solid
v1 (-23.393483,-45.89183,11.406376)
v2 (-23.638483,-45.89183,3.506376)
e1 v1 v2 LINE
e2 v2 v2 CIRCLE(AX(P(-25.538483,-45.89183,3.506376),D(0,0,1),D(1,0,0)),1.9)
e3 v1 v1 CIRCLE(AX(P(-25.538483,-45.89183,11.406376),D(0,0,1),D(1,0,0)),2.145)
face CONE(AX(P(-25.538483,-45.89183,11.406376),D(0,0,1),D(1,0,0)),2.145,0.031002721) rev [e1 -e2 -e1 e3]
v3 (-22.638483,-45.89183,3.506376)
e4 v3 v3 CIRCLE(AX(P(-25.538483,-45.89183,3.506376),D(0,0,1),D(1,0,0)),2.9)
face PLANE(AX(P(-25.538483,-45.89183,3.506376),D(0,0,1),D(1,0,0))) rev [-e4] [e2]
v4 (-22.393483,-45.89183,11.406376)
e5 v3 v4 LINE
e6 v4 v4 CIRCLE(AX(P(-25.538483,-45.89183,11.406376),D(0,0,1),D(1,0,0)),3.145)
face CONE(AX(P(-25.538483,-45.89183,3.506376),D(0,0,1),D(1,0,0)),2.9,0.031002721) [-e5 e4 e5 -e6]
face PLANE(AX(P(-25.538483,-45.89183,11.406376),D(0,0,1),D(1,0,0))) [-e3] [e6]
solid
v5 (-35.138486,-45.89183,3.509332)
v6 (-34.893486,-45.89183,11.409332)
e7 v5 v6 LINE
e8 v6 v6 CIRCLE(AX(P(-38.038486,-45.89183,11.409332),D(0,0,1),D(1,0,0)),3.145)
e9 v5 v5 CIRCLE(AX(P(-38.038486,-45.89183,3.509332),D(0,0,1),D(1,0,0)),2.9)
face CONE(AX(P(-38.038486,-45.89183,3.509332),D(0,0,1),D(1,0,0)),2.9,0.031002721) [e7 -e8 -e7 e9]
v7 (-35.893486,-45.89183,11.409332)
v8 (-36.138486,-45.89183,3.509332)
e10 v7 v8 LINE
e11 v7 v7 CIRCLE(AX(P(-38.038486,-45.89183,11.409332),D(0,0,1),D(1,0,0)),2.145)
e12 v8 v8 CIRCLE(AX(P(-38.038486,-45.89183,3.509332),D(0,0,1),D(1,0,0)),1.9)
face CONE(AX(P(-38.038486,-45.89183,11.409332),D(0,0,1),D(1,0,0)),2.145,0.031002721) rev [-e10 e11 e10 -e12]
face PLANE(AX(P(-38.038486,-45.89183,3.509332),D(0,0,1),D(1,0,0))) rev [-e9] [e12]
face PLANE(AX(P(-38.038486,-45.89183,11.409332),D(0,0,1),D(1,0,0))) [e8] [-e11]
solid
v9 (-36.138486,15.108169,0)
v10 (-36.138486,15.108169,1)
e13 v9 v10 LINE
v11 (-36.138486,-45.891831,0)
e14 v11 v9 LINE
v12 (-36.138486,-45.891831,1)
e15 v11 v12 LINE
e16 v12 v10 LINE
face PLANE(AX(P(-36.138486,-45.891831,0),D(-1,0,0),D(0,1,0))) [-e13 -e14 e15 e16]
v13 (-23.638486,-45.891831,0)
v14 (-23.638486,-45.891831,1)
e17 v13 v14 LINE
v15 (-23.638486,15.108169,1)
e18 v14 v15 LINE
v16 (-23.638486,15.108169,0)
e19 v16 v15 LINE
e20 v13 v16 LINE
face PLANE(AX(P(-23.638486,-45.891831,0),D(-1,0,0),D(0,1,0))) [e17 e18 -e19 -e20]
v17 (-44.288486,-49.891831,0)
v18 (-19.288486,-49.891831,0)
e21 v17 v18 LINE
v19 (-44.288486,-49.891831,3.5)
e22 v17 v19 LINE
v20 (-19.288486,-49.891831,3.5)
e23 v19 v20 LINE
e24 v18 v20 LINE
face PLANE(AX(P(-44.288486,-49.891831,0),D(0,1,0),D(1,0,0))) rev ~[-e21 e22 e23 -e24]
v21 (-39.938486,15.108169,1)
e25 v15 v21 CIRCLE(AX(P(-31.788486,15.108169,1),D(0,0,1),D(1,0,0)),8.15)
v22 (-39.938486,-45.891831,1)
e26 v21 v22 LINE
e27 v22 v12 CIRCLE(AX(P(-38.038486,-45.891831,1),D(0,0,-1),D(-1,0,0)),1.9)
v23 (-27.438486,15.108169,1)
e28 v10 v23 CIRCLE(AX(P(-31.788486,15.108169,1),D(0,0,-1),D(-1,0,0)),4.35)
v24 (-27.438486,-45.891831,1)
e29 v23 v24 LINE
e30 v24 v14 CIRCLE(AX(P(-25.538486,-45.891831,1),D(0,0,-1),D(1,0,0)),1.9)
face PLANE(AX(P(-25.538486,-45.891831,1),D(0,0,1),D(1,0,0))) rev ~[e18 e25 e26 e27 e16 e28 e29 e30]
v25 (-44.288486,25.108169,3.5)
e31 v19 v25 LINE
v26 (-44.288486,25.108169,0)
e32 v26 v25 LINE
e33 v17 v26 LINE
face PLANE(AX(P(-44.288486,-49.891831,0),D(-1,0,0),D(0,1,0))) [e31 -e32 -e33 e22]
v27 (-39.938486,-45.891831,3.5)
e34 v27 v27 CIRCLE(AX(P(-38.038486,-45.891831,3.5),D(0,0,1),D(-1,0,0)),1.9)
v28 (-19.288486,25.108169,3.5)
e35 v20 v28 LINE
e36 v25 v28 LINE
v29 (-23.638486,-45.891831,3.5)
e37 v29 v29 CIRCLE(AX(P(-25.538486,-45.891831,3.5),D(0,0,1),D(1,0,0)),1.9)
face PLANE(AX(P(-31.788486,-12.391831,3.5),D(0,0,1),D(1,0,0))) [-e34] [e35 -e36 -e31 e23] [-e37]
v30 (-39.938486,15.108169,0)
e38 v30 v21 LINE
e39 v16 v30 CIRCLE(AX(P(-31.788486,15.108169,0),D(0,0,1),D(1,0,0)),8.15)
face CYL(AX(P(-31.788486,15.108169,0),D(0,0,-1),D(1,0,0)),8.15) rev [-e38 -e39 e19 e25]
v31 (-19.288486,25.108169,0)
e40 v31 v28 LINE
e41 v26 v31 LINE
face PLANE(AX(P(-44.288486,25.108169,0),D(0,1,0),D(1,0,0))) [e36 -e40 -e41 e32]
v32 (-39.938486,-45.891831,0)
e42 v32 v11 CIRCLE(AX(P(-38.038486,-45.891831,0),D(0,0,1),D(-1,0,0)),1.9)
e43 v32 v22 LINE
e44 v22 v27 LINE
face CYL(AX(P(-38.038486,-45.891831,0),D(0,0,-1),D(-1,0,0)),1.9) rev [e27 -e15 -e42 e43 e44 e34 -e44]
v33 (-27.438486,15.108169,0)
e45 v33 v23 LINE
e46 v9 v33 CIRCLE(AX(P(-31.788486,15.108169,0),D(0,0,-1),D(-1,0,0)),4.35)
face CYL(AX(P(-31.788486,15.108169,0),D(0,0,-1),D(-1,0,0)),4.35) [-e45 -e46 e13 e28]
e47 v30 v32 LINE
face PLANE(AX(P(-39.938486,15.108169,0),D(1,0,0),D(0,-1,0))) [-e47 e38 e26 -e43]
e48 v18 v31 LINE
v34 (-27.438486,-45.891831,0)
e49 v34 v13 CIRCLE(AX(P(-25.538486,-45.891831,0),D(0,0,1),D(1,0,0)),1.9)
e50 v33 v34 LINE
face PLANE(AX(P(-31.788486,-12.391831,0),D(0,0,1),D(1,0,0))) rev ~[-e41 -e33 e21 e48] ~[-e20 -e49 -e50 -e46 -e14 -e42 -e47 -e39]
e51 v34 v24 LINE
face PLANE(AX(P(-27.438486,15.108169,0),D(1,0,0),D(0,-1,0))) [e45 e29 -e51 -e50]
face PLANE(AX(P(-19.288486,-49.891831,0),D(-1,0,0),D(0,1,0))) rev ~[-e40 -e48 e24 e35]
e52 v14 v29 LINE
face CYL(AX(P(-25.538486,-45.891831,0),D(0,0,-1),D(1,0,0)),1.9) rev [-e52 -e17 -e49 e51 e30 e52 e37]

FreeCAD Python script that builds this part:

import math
import FreeCAD as App
import Part
import Sketcher
from FreeCAD import Vector
Q = App.Units.Quantity


def add_polygon(sketch, points):
    """Adds a closed chain of lines whose ends are joined by coincident constraints."""
    first, n = sketch.GeometryCount, len(points)
    for a, b in zip(points, points[1:] + points[:1]):
        sketch.addGeometry(Part.LineSegment(App.Vector(*a, 0), App.Vector(*b, 0)), False)
    for i in range(n):
        sketch.addConstraint(Sketcher.Constraint("Coincident", first + i, 2, first + (i + 1) % n, 1))

doc = App.newDocument("Part")
body = doc.addObject("PartDesign::Body", "Body")

# Sketch on XY plane
sketch1 = body.newObject("Sketcher::SketchObject", "Sketch")
sketch1.AttachmentSupport = (doc.getObject("XY_Plane"), [""])
sketch1.MapMode = "FlatFace"
add_polygon(sketch1, [(-44.288486, 25.108169), (-44.288486, -49.891831), (-19.288486, -49.891831), (-19.288486, 25.108169)])  # lines 0-3
sketch1.addConstraint(Sketcher.Constraint("Vertical", 0))
sketch1.addConstraint(Sketcher.Constraint("Horizontal", 1))
sketch1.addConstraint(Sketcher.Constraint("Vertical", 2))
sketch1.addConstraint(Sketcher.Constraint("Horizontal", 3))
sketch1.addConstraint(Sketcher.Constraint("DistanceX", 1, 1, 1, 2, Q("25 mm")))
sketch1.addConstraint(Sketcher.Constraint("DistanceY", 0, 2, 0, 1, Q("75 mm")))
sketch1.addConstraint(Sketcher.Constraint("DistanceY", 0, 2, -1, 1, Q("49.891831 mm")))
sketch1.addConstraint(Sketcher.Constraint("DistanceX", 0, 2, -1, 1, Q("44.288486 mm")))
pad1 = body.newObject("PartDesign::Pad", "Pad")
pad1.Profile = sketch1
pad1.Length = 3.5

# Sketch on XY plane
sketch2 = body.newObject("Sketcher::SketchObject", "Sketch001")
sketch2.AttachmentSupport = (doc.getObject("XY_Plane"), [""])
sketch2.MapMode = "FlatFace"
sketch2.addGeometry(Part.ArcOfCircle(Part.Circle(Vector(-25.538486, -45.891831, 0), Vector(0, 0, 1), 1.9), math.radians(180), math.radians(360)), False)
sketch2.addGeometry(Part.LineSegment(Vector(-23.638486, -45.891831, 0), Vector(-23.638486, 15.108169, 0)), False)
sketch2.addGeometry(Part.ArcOfCircle(Part.Circle(Vector(-31.788486, 15.108169, 0), Vector(0, 0, 1), 8.15), math.radians(0), math.radians(180)), False)
sketch2.addGeometry(Part.LineSegment(Vector(-39.938486, 15.108169, 0), Vector(-39.938486, -45.891831, 0)), False)
sketch2.addGeometry(Part.ArcOfCircle(Part.Circle(Vector(-38.038486, -45.891831, 0), Vector(0, 0, 1), 1.9), math.radians(180), math.radians(360)), False)
sketch2.addGeometry(Part.LineSegment(Vector(-36.138486, -45.891831, 0), Vector(-36.138486, 15.108169, 0)), False)
sketch2.addGeometry(Part.ArcOfCircle(Part.Circle(Vector(-31.788486, 15.108169, 0), Vector(0, 0, 1), 4.35), math.radians(0), math.radians(180)), False)
sketch2.addGeometry(Part.LineSegment(Vector(-27.438486, 15.108169, 0), Vector(-27.438486, -45.891831, 0)), False)
sketch2.addConstraint(Sketcher.Constraint("Tangent", 0, 2, 1, 1))
sketch2.addConstraint(Sketcher.Constraint("Tangent", 1, 2, 2, 1))
sketch2.addConstraint(Sketcher.Constraint("Tangent", 2, 2, 3, 1))
sketch2.addConstraint(Sketcher.Constraint("Tangent", 3, 2, 4, 1))
sketch2.addConstraint(Sketcher.Constraint("Tangent", 4, 2, 5, 1))
sketch2.addConstraint(Sketcher.Constraint("Tangent", 5, 2, 6, 2))
sketch2.addConstraint(Sketcher.Constraint("Tangent", 6, 1, 7, 1))
sketch2.addConstraint(Sketcher.Constraint("Tangent", 7, 2, 0, 1))
sketch2.addConstraint(Sketcher.Constraint("Vertical", 1))
sketch2.addConstraint(Sketcher.Constraint("Vertical", 3))
sketch2.addConstraint(Sketcher.Constraint("Vertical", 5))
sketch2.addConstraint(Sketcher.Constraint("Vertical", 7))
sketch2.addConstraint(Sketcher.Constraint("Coincident", 6, 3, 2, 3))
sketch2.addConstraint(Sketcher.Constraint("Horizontal", 0, 3, 4, 3))
sketch2.addConstraint(Sketcher.Constraint("Radius", 0, Q("1.9 mm")))
sketch2.addConstraint(Sketcher.Constraint("DistanceY", 1, 1, 1, 2, Q("61 mm")))
sketch2.addConstraint(Sketcher.Constraint("Radius", 2, Q("8.15 mm")))
sketch2.addConstraint(Sketcher.Constraint("DistanceY", 0, 3, -1, 1, Q("45.891831 mm")))
sketch2.addConstraint(Sketcher.Constraint("DistanceX", 0, 3, -1, 1, Q("25.538486 mm")))
pocket1 = body.newObject("PartDesign::Pocket", "Pocket")
pocket1.Profile = sketch2
pocket1.Length = 1
pocket1.Reversed = True

# Sketch on XY plane
sketch3 = body.newObject("Sketcher::SketchObject", "Sketch002")
sketch3.AttachmentSupport = (doc.getObject("XY_Plane"), [""])
sketch3.MapMode = "FlatFace"
sketch3.addGeometry(Part.Circle(Vector(-25.538486, -45.891831, 0), Vector(0, 0, 1), 1.9), False)
sketch3.addGeometry(Part.Circle(Vector(-38.038486, -45.891831, 0), Vector(0, 0, 1), 1.9), False)
sketch3.addConstraint(Sketcher.Constraint("Equal", 0, 1))
sketch3.addConstraint(Sketcher.Constraint("Horizontal", 0, 3, 1, 3))
sketch3.addConstraint(Sketcher.Constraint("Diameter", 0, Q("3.8 mm")))
sketch3.addConstraint(Sketcher.Constraint("DistanceX", 1, 3, 0, 3, Q("12.5 mm")))
sketch3.addConstraint(Sketcher.Constraint("DistanceY", 0, 3, -1, 1, Q("45.891831 mm")))
sketch3.addConstraint(Sketcher.Constraint("DistanceX", 0, 3, -1, 1, Q("25.538486 mm")))
pocket2 = body.newObject("PartDesign::Pocket", "Pocket001")
pocket2.Profile = sketch3
pocket2.Length = 3.5
pocket2.Reversed = True
body2 = doc.addObject("PartDesign::Body", "Body001")

# Sketch on XZ plane
sketch4 = body2.newObject("Sketcher::SketchObject", "Sketch003")
sketch4.AttachmentSupport = (doc.getObject("XZ_Plane001"), [""])
sketch4.MapMode = "FlatFace"
sketch4.AttachmentOffset = App.Placement(Vector(0, 0, 45.89183), App.Rotation())
add_polygon(sketch4, [(-35.893486, 11.409332), (-36.138486, 3.509332), (-35.138486, 3.509332), (-34.893486, 11.409332)])  # lines 0-3
sketch4.addGeometry(Part.LineSegment(Vector(-38.038486, 3.509332, 0), Vector(-38.038486, 11.409332, 0)), True)  # axis
sketch4.addConstraint(Sketcher.Constraint("Horizontal", 1))
sketch4.addConstraint(Sketcher.Constraint("Horizontal", 3))
sketch4.addConstraint(Sketcher.Constraint("Vertical", 4))
sketch4.addConstraint(Sketcher.Constraint("Parallel", 0, 2))
sketch4.addConstraint(Sketcher.Constraint("Horizontal", 1, 2, 4, 1))
sketch4.addConstraint(Sketcher.Constraint("Horizontal", 3, 2, 4, 2))
sketch4.addConstraint(Sketcher.Constraint("DistanceX", 1, 1, 1, 2, Q("1 mm")))
sketch4.addConstraint(Sketcher.Constraint("DistanceY", 4, 1, 4, 2, Q("7.9 mm")))
sketch4.addConstraint(Sketcher.Constraint("DistanceX", 4, 1, 0, 2, Q("1.9 mm")))
sketch4.addConstraint(Sketcher.Constraint("DistanceX", 1, 2, 2, 2, Q("0.245 mm")))
sketch4.addConstraint(Sketcher.Constraint("DistanceY", -1, 1, 2, 2, Q("11.409332 mm")))
sketch4.addConstraint(Sketcher.Constraint("DistanceX", 0, 2, -1, 1, Q("36.138486 mm")))
revolution = body2.newObject("PartDesign::Revolution", "Revolution")
revolution.Profile = sketch4
revolution.ReferenceAxis = (sketch4, ["Axis0"])
revolution.Angle = 360
body3 = doc.addObject("PartDesign::Body", "Body002")

# Sketch on XZ plane
sketch5 = body3.newObject("Sketcher::SketchObject", "Sketch004")
sketch5.AttachmentSupport = (doc.getObject("XZ_Plane002"), [""])
sketch5.MapMode = "FlatFace"
sketch5.AttachmentOffset = App.Placement(Vector(0, 0, 45.89183), App.Rotation())
add_polygon(sketch5, [(-23.393483, 11.406376), (-23.638483, 3.506376), (-22.638483, 3.506376), (-22.393483, 11.406376)])  # lines 0-3
sketch5.addGeometry(Part.LineSegment(Vector(-25.538483, 3.506376, 0), Vector(-25.538483, 11.406376, 0)), True)  # axis
sketch5.addConstraint(Sketcher.Constraint("Horizontal", 1))
sketch5.addConstraint(Sketcher.Constraint("Horizontal", 3))
sketch5.addConstraint(Sketcher.Constraint("Vertical", 4))
sketch5.addConstraint(Sketcher.Constraint("Parallel", 0, 2))
sketch5.addConstraint(Sketcher.Constraint("Horizontal", 1, 2, 4, 1))
sketch5.addConstraint(Sketcher.Constraint("Horizontal", 3, 2, 4, 2))
sketch5.addConstraint(Sketcher.Constraint("DistanceX", 1, 1, 1, 2, Q("1 mm")))
sketch5.addConstraint(Sketcher.Constraint("DistanceY", 4, 1, 4, 2, Q("7.9 mm")))
sketch5.addConstraint(Sketcher.Constraint("DistanceX", 4, 1, 0, 2, Q("1.9 mm")))
sketch5.addConstraint(Sketcher.Constraint("DistanceX", 1, 2, 2, 2, Q("0.245 mm")))
sketch5.addConstraint(Sketcher.Constraint("DistanceX", 0, 2, -1, 1, Q("23.638483 mm")))
sketch5.addConstraint(Sketcher.Constraint("DistanceY", -1, 1, 0, 2, Q("3.506376 mm")))
revolution2 = body3.newObject("PartDesign::Revolution", "Revolution001")
revolution2.Profile = sketch5
revolution2.ReferenceAxis = (sketch5, ["Axis0"])
revolution2.Angle = 360

doc.recompute()
